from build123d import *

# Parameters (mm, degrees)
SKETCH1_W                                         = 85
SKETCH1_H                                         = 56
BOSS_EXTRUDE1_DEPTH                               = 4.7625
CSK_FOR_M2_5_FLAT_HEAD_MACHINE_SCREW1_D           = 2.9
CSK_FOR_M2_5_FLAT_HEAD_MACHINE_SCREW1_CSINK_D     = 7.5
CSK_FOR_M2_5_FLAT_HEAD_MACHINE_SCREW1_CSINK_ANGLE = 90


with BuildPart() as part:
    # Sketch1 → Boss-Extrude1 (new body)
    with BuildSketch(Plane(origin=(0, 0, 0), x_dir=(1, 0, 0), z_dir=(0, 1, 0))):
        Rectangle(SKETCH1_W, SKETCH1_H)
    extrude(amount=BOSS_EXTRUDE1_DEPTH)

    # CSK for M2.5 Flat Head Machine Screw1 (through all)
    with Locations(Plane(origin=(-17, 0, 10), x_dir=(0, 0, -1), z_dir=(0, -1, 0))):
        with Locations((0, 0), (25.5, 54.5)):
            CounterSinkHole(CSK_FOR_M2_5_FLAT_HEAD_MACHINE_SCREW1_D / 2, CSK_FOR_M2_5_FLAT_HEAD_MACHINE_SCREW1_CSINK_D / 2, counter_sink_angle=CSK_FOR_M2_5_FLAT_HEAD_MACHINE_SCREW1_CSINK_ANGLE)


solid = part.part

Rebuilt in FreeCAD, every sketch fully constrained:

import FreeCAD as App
import Part
import Sketcher

doc = App.newDocument("Part")
body = doc.addObject("PartDesign::Body", "Body")

# Sketch on XZ plane
sketch1 = doc.addObject("Sketcher::SketchObject", "Sketch")
body.addObject(sketch1)
sketch1.AttachmentSupport = (doc.XZ_Plane, [""])
sketch1.MapMode = "FlatFace"
sketch1.addGeometry([
    Part.LineSegment(App.Vector(-42, -28, 0), App.Vector(-42, 28, 0)),
    Part.LineSegment(App.Vector(-42, 28, 0), App.Vector(42, 28, 0)),
    Part.LineSegment(App.Vector(42, 28, 0), App.Vector(42, -28, 0)),
    Part.LineSegment(App.Vector(42, -28, 0), App.Vector(-42, -28, 0)),
], False)
sketch1.addConstraint([
    Sketcher.Constraint("Coincident", 0, 2, 1, 1),
    Sketcher.Constraint("Coincident", 1, 2, 2, 1),
    Sketcher.Constraint("Coincident", 2, 2, 3, 1),
    Sketcher.Constraint("Coincident", 3, 2, 0, 1),
    Sketcher.Constraint("Vertical", 0),
    Sketcher.Constraint("Horizontal", 1),
    Sketcher.Constraint("Vertical", 2),
    Sketcher.Constraint("Horizontal", 3),
    Sketcher.Constraint("Symmetric", 0, 2, 2, 2, -1, 1),
    Sketcher.Constraint("DistanceX", 1, 1, 1, 2, 85.0),
    Sketcher.Constraint("DistanceY", 0, 1, 0, 2, 56.0),
])
pad1 = doc.addObject("PartDesign::Pad", "Pad")
body.addObject(pad1)
pad1.Profile = sketch1
pad1.Length = 4.7625
pad1.Reversed = True

# Sketch on XZ plane
sketch2 = doc.addObject("Sketcher::SketchObject", "Sketch001")
body.addObject(sketch2)
sketch2.AttachmentSupport = (doc.XZ_Plane, [""])
sketch2.MapMode = "FlatFace"
sketch2.addGeometry([
    Part.Circle(App.Vector(-17, 10, 0), App.Vector(0, 0, 1), 1.4),
    Part.Circle(App.Vector(37.5, -15.5, 0), App.Vector(0, 0, 1), 1.4),
], False)
sketch2.addConstraint([
    Sketcher.Constraint("Equal", 0, 1),
    Sketcher.Constraint("Diameter", 0, 2.9),
    Sketcher.Constraint("DistanceX", 0, 3, -1, 1, 17.0),
    Sketcher.Constraint("DistanceY", -1, 1, 0, 3, 10.0),
    Sketcher.Constraint("DistanceX", -1, 1, 1, 3, 37.5),
    Sketcher.Constraint("DistanceY", 1, 3, -1, 1, 15.5),
])
doc.recompute()
hole = doc.addObject("PartDesign::Hole", "Hole")
body.addObject(hole)
hole.Profile = sketch2
hole.ThreadType = "None"
hole.Diameter = 2.9
hole.DepthType = "ThroughAll"
hole.HoleCutType = "Countersink"
hole.HoleCutDiameter = 7.5
hole.HoleCutCountersinkAngle = 90

doc.recompute()
